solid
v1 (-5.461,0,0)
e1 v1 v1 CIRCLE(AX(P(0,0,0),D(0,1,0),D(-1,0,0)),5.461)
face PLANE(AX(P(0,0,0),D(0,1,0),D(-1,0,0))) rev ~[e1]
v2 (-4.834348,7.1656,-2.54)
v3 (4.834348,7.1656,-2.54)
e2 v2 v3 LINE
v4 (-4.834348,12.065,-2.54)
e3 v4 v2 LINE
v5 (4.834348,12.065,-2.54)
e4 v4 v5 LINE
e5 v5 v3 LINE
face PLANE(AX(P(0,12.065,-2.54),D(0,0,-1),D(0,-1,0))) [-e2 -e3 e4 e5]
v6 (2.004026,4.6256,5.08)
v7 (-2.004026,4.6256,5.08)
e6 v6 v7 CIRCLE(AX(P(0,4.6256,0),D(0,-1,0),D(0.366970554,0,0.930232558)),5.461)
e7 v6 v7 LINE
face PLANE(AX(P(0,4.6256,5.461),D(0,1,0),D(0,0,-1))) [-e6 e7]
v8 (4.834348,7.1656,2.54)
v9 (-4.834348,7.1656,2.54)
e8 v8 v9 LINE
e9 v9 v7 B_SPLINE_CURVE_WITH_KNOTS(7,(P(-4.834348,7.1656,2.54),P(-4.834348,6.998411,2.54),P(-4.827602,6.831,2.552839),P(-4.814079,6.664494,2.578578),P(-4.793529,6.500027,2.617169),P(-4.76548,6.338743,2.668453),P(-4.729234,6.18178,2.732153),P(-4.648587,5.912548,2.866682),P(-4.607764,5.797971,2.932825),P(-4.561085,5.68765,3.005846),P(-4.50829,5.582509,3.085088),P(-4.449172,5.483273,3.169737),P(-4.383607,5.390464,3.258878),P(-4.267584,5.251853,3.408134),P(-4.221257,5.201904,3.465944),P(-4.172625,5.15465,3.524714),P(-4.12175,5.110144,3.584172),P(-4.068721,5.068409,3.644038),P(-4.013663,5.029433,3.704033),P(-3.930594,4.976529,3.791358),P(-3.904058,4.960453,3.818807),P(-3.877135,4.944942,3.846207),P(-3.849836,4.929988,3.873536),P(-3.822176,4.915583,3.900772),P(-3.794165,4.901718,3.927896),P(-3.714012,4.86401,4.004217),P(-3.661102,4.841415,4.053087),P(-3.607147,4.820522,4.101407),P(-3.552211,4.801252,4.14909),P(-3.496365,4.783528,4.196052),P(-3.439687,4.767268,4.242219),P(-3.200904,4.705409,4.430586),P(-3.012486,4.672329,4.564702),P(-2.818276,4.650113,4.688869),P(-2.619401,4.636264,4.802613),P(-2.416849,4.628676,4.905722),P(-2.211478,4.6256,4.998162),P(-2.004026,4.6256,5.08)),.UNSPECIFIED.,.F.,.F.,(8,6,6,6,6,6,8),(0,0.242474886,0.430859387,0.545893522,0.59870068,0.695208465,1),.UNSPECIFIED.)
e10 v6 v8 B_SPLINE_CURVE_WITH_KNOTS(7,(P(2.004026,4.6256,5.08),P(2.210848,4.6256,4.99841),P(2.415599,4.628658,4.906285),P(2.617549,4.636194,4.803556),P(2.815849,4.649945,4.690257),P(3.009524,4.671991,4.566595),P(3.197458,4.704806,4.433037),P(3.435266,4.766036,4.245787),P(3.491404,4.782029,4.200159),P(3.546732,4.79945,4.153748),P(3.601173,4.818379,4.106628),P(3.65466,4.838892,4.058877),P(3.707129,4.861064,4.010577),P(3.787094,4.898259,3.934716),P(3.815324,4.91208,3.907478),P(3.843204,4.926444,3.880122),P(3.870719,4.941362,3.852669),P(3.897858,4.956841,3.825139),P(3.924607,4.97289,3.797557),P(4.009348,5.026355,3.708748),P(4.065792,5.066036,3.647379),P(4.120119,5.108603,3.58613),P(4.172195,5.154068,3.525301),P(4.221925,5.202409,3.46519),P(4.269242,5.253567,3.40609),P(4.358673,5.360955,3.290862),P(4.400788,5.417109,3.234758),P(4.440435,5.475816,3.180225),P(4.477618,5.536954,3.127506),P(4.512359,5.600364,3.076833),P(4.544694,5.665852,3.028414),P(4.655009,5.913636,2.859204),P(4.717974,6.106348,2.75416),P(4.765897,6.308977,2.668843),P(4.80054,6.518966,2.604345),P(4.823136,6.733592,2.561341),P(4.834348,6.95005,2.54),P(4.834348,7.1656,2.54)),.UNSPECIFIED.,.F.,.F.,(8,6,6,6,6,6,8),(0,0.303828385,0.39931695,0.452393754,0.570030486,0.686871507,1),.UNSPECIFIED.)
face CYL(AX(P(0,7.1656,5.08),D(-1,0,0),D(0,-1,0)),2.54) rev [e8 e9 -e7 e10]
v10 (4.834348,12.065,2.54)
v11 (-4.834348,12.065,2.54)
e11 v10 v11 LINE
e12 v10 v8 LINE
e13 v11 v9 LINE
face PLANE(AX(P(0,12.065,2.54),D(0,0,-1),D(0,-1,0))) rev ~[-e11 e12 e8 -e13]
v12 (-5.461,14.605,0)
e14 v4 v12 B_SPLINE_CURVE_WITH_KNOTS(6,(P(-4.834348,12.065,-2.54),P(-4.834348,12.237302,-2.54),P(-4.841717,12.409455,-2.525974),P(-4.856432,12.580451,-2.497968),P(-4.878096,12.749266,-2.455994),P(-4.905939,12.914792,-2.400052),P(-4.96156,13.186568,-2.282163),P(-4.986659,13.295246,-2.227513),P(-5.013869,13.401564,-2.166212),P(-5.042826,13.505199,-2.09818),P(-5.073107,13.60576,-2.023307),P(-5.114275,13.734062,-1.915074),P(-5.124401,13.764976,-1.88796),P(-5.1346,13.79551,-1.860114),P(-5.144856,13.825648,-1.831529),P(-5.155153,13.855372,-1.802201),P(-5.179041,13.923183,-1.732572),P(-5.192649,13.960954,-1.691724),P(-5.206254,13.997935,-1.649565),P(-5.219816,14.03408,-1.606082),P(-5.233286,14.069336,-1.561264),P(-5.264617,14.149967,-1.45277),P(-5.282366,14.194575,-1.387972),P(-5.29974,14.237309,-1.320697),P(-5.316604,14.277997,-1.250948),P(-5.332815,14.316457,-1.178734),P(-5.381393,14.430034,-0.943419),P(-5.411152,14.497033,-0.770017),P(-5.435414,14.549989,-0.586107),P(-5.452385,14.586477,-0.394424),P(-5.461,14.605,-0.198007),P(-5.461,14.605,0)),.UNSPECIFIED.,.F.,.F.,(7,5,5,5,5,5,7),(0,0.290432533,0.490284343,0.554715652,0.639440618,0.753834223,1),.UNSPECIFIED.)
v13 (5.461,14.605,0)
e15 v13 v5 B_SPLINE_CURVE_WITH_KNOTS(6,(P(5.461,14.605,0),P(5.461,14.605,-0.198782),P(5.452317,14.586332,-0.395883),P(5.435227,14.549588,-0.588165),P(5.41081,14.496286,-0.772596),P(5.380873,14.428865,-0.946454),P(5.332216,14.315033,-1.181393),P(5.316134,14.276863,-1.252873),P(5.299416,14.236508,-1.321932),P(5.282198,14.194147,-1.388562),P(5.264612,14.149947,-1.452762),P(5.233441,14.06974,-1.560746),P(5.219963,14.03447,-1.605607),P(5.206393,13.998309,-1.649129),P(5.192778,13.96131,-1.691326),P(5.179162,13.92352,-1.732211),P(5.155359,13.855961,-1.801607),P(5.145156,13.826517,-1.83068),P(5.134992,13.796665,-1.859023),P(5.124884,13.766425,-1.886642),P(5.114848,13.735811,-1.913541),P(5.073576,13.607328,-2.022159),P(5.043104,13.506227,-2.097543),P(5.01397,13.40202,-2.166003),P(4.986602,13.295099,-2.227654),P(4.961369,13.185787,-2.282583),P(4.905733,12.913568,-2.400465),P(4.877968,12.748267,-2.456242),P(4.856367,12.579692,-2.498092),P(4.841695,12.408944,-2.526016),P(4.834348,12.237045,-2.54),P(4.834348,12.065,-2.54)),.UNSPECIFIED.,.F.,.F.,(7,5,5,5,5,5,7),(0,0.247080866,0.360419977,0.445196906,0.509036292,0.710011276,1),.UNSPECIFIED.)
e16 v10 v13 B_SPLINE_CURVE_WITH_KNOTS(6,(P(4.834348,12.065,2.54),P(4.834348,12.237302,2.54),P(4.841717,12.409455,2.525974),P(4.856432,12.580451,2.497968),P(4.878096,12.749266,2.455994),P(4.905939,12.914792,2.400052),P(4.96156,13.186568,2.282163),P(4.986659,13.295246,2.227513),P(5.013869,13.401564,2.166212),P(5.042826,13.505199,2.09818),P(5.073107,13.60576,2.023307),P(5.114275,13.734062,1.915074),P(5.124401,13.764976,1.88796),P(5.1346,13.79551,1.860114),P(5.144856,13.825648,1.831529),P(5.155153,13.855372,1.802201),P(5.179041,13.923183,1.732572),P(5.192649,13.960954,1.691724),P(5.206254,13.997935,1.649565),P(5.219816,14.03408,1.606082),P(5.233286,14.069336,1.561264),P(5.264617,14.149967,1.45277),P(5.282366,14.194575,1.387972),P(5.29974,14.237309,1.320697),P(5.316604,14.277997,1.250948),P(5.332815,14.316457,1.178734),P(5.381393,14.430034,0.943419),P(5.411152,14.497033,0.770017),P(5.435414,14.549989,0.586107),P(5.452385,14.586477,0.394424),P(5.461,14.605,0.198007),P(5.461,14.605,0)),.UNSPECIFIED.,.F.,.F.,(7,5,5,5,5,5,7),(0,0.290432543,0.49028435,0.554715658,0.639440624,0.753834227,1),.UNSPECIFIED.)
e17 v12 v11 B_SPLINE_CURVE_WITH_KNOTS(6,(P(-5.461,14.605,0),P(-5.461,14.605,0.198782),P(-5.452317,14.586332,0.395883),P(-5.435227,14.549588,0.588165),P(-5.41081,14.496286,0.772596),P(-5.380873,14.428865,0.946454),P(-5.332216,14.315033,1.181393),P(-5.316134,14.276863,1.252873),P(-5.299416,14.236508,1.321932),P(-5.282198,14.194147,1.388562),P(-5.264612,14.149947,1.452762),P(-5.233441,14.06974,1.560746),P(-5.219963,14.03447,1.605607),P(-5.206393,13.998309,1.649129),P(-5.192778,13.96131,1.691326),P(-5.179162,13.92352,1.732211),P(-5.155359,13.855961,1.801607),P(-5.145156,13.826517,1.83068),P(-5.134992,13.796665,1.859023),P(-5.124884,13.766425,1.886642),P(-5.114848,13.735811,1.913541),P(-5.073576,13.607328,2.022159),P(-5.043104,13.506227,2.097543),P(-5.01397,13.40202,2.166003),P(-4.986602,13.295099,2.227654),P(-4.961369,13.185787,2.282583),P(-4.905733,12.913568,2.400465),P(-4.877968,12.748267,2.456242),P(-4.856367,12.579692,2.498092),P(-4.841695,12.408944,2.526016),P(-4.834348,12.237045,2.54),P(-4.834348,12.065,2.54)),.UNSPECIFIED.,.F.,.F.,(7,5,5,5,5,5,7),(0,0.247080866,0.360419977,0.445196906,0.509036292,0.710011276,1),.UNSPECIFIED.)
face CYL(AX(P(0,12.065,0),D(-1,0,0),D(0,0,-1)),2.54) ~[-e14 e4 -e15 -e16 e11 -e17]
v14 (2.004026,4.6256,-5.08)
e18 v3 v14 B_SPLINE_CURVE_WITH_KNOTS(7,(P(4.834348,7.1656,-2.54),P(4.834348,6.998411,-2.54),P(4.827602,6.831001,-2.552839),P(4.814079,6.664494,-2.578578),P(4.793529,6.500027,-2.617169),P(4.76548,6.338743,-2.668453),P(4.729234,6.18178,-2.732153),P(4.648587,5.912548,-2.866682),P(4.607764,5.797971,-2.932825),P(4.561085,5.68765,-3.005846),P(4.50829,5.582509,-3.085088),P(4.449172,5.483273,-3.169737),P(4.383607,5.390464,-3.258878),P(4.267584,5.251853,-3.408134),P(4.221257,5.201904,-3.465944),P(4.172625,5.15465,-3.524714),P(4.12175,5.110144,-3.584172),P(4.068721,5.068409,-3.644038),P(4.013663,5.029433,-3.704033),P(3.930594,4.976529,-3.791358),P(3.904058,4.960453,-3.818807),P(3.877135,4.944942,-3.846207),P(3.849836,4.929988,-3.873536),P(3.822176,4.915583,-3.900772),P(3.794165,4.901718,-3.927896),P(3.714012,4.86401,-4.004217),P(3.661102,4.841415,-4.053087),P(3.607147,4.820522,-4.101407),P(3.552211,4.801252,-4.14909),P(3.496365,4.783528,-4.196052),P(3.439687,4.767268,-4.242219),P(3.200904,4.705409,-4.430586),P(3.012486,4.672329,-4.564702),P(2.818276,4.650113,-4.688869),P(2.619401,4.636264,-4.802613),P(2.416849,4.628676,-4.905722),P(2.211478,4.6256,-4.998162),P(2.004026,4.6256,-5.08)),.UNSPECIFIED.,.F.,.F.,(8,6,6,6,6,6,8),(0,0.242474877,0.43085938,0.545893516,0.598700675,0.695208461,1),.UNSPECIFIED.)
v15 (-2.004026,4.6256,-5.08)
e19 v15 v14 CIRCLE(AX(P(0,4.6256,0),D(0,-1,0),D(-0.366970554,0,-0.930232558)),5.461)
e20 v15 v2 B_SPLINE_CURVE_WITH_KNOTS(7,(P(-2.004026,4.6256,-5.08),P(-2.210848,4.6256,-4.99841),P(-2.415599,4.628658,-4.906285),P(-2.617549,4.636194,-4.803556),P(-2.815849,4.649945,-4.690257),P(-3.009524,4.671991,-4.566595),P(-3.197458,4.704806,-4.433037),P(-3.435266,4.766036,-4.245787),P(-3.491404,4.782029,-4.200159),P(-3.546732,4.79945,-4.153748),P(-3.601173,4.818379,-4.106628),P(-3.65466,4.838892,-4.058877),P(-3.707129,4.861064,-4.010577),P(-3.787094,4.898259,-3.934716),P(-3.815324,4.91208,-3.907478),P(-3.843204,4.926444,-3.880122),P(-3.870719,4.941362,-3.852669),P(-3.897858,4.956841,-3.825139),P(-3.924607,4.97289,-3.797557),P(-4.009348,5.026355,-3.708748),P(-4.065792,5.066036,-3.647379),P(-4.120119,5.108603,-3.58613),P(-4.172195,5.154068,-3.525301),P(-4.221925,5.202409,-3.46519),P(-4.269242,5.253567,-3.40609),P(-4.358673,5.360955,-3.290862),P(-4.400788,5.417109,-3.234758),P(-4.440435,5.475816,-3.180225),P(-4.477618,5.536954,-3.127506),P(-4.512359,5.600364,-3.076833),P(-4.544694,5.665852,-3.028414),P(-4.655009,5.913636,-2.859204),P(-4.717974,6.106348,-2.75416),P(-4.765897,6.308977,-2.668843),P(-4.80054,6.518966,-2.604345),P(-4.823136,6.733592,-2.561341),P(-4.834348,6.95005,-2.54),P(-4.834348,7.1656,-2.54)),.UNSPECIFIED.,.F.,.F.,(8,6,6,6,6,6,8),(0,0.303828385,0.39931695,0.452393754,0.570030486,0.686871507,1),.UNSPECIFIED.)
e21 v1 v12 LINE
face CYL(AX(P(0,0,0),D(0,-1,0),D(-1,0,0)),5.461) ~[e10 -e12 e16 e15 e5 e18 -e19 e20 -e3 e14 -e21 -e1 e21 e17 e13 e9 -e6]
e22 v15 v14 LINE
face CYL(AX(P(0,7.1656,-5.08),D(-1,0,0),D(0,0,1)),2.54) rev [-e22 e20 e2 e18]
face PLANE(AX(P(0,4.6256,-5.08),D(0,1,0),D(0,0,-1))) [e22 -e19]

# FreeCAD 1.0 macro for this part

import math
import FreeCAD as App
import Part
import Sketcher

V = App.Vector
Q = App.Units.Quantity

doc = App.newDocument("Part")
body = doc.addObject("PartDesign::Body", "Body")

sketch1 = doc.addObject("Sketcher::SketchObject", "Sketch")
body.addObject(sketch1)
sketch1.AttachmentSupport = (doc.XZ_Plane, [""])
sketch1.MapMode = "FlatFace"
sketch1.addGeometry(Part.Circle(V(0, 0, 0), V(0, 0, 1), 5), False)
sketch1.addConstraint([
    Sketcher.Constraint("Coincident", 0, 3, -1, 1),
    Sketcher.Constraint("Diameter", 0, Q("0.43 in")),
])
pad1 = doc.addObject("PartDesign::Pad", "Pad")
body.addObject(pad1)
pad1.Profile = sketch1
pad1.Length = Q("0.575 in")
pad1.Reversed = True

sketch2 = doc.addObject("Sketcher::SketchObject", "Sketch001")
body.addObject(sketch2)
sketch2.AttachmentSupport = (doc.YZ_Plane, [""])
sketch2.MapMode = "FlatFace"
sketch2.addGeometry([
    Part.ArcOfCircle(Part.Circle(V(12.06, 0, 0), V(0, 0, 1), 2.54), math.radians(0), math.radians(90)),
    Part.LineSegment(V(14.61, 0, 0), V(14.61, 5.46, 0)),
    Part.LineSegment(V(14.61, 5.46, 0), V(4.63, 5.46, 0)),
    Part.LineSegment(V(4.63, 5.46, 0), V(4.63, 5.08, 0)),
    Part.ArcOfCircle(Part.Circle(V(7.17, 5.08, 0), V(0, 0, 1), 2.54), math.radians(180), math.radians(270)),
    Part.LineSegment(V(7.17, 2.54, 0), V(12.06, 2.54, 0)),
    Part.ArcOfCircle(Part.Circle(V(12.06, 0, 0), V(0, 0, 1), 2.54), math.radians(-90), math.radians(0)),
    Part.LineSegment(V(12.06, -2.54, 0), V(7.17, -2.54, 0)),
    Part.ArcOfCircle(Part.Circle(V(7.17, -5.08, 0), V(0, 0, 1), 2.54), math.radians(90), math.radians(180)),
    Part.LineSegment(V(4.63, -5.08, 0), V(4.63, -5.46, 0)),
    Part.LineSegment(V(4.63, -5.46, 0), V(14.61, -5.46, 0)),
    Part.LineSegment(V(14.61, -5.46, 0), V(14.61, 0, 0)),
], False)
sketch2.addConstraint([
    Sketcher.Constraint("Tangent", 0, 1, 1, 1),
    Sketcher.Constraint("Coincident", 1, 2, 2, 1),
    Sketcher.Constraint("Coincident", 2, 2, 3, 1),
    Sketcher.Constraint("Tangent", 3, 2, 4, 1),
    Sketcher.Constraint("Tangent", 4, 2, 5, 1),
    Sketcher.Constraint("Tangent", 5, 2, 0, 2),
    Sketcher.Constraint("Tangent", 6, 1, 7, 1),
    Sketcher.Constraint("Tangent", 7, 2, 8, 1),
    Sketcher.Constraint("Tangent", 8, 2, 9, 1),
    Sketcher.Constraint("Coincident", 9, 2, 10, 1),
    Sketcher.Constraint("Coincident", 10, 2, 11, 1),
    Sketcher.Constraint("Tangent", 11, 2, 6, 2),
    Sketcher.Constraint("Vertical", 1),
    Sketcher.Constraint("Horizontal", 2),
    Sketcher.Constraint("Vertical", 3),
    Sketcher.Constraint("Horizontal", 5),
    Sketcher.Constraint("Horizontal", 7),
    Sketcher.Constraint("Vertical", 9),
    Sketcher.Constraint("Horizontal", 10),
    Sketcher.Constraint("Vertical", 11),
    Sketcher.Constraint("Coincident", 6, 3, 0, 3),
    Sketcher.Constraint("Equal", 0, 4),
    Sketcher.Constraint("Equal", 4, 6),
    Sketcher.Constraint("Equal", 6, 8),
    Sketcher.Constraint("Symmetric", 4, 3, 8, 3, -1),
    Sketcher.Constraint("Equal", 3, 9),
    Sketcher.Constraint("Radius", 0, Q("0.1 in")),
    Sketcher.Constraint("DistanceY", 1, 1, 1, 2, Q("0.215 in")),
    Sketcher.Constraint("DistanceX", 2, 2, 2, 1, Q("0.3929 in")),
    Sketcher.Constraint("DistanceX", -1, 1, 0, 3, Q("0.475 in")),
])
pocket1 = doc.addObject("PartDesign::Pocket", "Pocket")
body.addObject(pocket1)
pocket1.Profile = sketch2
pocket1.Length = Q("0.575 in")
pocket1.Midplane = True

doc.recompute()
